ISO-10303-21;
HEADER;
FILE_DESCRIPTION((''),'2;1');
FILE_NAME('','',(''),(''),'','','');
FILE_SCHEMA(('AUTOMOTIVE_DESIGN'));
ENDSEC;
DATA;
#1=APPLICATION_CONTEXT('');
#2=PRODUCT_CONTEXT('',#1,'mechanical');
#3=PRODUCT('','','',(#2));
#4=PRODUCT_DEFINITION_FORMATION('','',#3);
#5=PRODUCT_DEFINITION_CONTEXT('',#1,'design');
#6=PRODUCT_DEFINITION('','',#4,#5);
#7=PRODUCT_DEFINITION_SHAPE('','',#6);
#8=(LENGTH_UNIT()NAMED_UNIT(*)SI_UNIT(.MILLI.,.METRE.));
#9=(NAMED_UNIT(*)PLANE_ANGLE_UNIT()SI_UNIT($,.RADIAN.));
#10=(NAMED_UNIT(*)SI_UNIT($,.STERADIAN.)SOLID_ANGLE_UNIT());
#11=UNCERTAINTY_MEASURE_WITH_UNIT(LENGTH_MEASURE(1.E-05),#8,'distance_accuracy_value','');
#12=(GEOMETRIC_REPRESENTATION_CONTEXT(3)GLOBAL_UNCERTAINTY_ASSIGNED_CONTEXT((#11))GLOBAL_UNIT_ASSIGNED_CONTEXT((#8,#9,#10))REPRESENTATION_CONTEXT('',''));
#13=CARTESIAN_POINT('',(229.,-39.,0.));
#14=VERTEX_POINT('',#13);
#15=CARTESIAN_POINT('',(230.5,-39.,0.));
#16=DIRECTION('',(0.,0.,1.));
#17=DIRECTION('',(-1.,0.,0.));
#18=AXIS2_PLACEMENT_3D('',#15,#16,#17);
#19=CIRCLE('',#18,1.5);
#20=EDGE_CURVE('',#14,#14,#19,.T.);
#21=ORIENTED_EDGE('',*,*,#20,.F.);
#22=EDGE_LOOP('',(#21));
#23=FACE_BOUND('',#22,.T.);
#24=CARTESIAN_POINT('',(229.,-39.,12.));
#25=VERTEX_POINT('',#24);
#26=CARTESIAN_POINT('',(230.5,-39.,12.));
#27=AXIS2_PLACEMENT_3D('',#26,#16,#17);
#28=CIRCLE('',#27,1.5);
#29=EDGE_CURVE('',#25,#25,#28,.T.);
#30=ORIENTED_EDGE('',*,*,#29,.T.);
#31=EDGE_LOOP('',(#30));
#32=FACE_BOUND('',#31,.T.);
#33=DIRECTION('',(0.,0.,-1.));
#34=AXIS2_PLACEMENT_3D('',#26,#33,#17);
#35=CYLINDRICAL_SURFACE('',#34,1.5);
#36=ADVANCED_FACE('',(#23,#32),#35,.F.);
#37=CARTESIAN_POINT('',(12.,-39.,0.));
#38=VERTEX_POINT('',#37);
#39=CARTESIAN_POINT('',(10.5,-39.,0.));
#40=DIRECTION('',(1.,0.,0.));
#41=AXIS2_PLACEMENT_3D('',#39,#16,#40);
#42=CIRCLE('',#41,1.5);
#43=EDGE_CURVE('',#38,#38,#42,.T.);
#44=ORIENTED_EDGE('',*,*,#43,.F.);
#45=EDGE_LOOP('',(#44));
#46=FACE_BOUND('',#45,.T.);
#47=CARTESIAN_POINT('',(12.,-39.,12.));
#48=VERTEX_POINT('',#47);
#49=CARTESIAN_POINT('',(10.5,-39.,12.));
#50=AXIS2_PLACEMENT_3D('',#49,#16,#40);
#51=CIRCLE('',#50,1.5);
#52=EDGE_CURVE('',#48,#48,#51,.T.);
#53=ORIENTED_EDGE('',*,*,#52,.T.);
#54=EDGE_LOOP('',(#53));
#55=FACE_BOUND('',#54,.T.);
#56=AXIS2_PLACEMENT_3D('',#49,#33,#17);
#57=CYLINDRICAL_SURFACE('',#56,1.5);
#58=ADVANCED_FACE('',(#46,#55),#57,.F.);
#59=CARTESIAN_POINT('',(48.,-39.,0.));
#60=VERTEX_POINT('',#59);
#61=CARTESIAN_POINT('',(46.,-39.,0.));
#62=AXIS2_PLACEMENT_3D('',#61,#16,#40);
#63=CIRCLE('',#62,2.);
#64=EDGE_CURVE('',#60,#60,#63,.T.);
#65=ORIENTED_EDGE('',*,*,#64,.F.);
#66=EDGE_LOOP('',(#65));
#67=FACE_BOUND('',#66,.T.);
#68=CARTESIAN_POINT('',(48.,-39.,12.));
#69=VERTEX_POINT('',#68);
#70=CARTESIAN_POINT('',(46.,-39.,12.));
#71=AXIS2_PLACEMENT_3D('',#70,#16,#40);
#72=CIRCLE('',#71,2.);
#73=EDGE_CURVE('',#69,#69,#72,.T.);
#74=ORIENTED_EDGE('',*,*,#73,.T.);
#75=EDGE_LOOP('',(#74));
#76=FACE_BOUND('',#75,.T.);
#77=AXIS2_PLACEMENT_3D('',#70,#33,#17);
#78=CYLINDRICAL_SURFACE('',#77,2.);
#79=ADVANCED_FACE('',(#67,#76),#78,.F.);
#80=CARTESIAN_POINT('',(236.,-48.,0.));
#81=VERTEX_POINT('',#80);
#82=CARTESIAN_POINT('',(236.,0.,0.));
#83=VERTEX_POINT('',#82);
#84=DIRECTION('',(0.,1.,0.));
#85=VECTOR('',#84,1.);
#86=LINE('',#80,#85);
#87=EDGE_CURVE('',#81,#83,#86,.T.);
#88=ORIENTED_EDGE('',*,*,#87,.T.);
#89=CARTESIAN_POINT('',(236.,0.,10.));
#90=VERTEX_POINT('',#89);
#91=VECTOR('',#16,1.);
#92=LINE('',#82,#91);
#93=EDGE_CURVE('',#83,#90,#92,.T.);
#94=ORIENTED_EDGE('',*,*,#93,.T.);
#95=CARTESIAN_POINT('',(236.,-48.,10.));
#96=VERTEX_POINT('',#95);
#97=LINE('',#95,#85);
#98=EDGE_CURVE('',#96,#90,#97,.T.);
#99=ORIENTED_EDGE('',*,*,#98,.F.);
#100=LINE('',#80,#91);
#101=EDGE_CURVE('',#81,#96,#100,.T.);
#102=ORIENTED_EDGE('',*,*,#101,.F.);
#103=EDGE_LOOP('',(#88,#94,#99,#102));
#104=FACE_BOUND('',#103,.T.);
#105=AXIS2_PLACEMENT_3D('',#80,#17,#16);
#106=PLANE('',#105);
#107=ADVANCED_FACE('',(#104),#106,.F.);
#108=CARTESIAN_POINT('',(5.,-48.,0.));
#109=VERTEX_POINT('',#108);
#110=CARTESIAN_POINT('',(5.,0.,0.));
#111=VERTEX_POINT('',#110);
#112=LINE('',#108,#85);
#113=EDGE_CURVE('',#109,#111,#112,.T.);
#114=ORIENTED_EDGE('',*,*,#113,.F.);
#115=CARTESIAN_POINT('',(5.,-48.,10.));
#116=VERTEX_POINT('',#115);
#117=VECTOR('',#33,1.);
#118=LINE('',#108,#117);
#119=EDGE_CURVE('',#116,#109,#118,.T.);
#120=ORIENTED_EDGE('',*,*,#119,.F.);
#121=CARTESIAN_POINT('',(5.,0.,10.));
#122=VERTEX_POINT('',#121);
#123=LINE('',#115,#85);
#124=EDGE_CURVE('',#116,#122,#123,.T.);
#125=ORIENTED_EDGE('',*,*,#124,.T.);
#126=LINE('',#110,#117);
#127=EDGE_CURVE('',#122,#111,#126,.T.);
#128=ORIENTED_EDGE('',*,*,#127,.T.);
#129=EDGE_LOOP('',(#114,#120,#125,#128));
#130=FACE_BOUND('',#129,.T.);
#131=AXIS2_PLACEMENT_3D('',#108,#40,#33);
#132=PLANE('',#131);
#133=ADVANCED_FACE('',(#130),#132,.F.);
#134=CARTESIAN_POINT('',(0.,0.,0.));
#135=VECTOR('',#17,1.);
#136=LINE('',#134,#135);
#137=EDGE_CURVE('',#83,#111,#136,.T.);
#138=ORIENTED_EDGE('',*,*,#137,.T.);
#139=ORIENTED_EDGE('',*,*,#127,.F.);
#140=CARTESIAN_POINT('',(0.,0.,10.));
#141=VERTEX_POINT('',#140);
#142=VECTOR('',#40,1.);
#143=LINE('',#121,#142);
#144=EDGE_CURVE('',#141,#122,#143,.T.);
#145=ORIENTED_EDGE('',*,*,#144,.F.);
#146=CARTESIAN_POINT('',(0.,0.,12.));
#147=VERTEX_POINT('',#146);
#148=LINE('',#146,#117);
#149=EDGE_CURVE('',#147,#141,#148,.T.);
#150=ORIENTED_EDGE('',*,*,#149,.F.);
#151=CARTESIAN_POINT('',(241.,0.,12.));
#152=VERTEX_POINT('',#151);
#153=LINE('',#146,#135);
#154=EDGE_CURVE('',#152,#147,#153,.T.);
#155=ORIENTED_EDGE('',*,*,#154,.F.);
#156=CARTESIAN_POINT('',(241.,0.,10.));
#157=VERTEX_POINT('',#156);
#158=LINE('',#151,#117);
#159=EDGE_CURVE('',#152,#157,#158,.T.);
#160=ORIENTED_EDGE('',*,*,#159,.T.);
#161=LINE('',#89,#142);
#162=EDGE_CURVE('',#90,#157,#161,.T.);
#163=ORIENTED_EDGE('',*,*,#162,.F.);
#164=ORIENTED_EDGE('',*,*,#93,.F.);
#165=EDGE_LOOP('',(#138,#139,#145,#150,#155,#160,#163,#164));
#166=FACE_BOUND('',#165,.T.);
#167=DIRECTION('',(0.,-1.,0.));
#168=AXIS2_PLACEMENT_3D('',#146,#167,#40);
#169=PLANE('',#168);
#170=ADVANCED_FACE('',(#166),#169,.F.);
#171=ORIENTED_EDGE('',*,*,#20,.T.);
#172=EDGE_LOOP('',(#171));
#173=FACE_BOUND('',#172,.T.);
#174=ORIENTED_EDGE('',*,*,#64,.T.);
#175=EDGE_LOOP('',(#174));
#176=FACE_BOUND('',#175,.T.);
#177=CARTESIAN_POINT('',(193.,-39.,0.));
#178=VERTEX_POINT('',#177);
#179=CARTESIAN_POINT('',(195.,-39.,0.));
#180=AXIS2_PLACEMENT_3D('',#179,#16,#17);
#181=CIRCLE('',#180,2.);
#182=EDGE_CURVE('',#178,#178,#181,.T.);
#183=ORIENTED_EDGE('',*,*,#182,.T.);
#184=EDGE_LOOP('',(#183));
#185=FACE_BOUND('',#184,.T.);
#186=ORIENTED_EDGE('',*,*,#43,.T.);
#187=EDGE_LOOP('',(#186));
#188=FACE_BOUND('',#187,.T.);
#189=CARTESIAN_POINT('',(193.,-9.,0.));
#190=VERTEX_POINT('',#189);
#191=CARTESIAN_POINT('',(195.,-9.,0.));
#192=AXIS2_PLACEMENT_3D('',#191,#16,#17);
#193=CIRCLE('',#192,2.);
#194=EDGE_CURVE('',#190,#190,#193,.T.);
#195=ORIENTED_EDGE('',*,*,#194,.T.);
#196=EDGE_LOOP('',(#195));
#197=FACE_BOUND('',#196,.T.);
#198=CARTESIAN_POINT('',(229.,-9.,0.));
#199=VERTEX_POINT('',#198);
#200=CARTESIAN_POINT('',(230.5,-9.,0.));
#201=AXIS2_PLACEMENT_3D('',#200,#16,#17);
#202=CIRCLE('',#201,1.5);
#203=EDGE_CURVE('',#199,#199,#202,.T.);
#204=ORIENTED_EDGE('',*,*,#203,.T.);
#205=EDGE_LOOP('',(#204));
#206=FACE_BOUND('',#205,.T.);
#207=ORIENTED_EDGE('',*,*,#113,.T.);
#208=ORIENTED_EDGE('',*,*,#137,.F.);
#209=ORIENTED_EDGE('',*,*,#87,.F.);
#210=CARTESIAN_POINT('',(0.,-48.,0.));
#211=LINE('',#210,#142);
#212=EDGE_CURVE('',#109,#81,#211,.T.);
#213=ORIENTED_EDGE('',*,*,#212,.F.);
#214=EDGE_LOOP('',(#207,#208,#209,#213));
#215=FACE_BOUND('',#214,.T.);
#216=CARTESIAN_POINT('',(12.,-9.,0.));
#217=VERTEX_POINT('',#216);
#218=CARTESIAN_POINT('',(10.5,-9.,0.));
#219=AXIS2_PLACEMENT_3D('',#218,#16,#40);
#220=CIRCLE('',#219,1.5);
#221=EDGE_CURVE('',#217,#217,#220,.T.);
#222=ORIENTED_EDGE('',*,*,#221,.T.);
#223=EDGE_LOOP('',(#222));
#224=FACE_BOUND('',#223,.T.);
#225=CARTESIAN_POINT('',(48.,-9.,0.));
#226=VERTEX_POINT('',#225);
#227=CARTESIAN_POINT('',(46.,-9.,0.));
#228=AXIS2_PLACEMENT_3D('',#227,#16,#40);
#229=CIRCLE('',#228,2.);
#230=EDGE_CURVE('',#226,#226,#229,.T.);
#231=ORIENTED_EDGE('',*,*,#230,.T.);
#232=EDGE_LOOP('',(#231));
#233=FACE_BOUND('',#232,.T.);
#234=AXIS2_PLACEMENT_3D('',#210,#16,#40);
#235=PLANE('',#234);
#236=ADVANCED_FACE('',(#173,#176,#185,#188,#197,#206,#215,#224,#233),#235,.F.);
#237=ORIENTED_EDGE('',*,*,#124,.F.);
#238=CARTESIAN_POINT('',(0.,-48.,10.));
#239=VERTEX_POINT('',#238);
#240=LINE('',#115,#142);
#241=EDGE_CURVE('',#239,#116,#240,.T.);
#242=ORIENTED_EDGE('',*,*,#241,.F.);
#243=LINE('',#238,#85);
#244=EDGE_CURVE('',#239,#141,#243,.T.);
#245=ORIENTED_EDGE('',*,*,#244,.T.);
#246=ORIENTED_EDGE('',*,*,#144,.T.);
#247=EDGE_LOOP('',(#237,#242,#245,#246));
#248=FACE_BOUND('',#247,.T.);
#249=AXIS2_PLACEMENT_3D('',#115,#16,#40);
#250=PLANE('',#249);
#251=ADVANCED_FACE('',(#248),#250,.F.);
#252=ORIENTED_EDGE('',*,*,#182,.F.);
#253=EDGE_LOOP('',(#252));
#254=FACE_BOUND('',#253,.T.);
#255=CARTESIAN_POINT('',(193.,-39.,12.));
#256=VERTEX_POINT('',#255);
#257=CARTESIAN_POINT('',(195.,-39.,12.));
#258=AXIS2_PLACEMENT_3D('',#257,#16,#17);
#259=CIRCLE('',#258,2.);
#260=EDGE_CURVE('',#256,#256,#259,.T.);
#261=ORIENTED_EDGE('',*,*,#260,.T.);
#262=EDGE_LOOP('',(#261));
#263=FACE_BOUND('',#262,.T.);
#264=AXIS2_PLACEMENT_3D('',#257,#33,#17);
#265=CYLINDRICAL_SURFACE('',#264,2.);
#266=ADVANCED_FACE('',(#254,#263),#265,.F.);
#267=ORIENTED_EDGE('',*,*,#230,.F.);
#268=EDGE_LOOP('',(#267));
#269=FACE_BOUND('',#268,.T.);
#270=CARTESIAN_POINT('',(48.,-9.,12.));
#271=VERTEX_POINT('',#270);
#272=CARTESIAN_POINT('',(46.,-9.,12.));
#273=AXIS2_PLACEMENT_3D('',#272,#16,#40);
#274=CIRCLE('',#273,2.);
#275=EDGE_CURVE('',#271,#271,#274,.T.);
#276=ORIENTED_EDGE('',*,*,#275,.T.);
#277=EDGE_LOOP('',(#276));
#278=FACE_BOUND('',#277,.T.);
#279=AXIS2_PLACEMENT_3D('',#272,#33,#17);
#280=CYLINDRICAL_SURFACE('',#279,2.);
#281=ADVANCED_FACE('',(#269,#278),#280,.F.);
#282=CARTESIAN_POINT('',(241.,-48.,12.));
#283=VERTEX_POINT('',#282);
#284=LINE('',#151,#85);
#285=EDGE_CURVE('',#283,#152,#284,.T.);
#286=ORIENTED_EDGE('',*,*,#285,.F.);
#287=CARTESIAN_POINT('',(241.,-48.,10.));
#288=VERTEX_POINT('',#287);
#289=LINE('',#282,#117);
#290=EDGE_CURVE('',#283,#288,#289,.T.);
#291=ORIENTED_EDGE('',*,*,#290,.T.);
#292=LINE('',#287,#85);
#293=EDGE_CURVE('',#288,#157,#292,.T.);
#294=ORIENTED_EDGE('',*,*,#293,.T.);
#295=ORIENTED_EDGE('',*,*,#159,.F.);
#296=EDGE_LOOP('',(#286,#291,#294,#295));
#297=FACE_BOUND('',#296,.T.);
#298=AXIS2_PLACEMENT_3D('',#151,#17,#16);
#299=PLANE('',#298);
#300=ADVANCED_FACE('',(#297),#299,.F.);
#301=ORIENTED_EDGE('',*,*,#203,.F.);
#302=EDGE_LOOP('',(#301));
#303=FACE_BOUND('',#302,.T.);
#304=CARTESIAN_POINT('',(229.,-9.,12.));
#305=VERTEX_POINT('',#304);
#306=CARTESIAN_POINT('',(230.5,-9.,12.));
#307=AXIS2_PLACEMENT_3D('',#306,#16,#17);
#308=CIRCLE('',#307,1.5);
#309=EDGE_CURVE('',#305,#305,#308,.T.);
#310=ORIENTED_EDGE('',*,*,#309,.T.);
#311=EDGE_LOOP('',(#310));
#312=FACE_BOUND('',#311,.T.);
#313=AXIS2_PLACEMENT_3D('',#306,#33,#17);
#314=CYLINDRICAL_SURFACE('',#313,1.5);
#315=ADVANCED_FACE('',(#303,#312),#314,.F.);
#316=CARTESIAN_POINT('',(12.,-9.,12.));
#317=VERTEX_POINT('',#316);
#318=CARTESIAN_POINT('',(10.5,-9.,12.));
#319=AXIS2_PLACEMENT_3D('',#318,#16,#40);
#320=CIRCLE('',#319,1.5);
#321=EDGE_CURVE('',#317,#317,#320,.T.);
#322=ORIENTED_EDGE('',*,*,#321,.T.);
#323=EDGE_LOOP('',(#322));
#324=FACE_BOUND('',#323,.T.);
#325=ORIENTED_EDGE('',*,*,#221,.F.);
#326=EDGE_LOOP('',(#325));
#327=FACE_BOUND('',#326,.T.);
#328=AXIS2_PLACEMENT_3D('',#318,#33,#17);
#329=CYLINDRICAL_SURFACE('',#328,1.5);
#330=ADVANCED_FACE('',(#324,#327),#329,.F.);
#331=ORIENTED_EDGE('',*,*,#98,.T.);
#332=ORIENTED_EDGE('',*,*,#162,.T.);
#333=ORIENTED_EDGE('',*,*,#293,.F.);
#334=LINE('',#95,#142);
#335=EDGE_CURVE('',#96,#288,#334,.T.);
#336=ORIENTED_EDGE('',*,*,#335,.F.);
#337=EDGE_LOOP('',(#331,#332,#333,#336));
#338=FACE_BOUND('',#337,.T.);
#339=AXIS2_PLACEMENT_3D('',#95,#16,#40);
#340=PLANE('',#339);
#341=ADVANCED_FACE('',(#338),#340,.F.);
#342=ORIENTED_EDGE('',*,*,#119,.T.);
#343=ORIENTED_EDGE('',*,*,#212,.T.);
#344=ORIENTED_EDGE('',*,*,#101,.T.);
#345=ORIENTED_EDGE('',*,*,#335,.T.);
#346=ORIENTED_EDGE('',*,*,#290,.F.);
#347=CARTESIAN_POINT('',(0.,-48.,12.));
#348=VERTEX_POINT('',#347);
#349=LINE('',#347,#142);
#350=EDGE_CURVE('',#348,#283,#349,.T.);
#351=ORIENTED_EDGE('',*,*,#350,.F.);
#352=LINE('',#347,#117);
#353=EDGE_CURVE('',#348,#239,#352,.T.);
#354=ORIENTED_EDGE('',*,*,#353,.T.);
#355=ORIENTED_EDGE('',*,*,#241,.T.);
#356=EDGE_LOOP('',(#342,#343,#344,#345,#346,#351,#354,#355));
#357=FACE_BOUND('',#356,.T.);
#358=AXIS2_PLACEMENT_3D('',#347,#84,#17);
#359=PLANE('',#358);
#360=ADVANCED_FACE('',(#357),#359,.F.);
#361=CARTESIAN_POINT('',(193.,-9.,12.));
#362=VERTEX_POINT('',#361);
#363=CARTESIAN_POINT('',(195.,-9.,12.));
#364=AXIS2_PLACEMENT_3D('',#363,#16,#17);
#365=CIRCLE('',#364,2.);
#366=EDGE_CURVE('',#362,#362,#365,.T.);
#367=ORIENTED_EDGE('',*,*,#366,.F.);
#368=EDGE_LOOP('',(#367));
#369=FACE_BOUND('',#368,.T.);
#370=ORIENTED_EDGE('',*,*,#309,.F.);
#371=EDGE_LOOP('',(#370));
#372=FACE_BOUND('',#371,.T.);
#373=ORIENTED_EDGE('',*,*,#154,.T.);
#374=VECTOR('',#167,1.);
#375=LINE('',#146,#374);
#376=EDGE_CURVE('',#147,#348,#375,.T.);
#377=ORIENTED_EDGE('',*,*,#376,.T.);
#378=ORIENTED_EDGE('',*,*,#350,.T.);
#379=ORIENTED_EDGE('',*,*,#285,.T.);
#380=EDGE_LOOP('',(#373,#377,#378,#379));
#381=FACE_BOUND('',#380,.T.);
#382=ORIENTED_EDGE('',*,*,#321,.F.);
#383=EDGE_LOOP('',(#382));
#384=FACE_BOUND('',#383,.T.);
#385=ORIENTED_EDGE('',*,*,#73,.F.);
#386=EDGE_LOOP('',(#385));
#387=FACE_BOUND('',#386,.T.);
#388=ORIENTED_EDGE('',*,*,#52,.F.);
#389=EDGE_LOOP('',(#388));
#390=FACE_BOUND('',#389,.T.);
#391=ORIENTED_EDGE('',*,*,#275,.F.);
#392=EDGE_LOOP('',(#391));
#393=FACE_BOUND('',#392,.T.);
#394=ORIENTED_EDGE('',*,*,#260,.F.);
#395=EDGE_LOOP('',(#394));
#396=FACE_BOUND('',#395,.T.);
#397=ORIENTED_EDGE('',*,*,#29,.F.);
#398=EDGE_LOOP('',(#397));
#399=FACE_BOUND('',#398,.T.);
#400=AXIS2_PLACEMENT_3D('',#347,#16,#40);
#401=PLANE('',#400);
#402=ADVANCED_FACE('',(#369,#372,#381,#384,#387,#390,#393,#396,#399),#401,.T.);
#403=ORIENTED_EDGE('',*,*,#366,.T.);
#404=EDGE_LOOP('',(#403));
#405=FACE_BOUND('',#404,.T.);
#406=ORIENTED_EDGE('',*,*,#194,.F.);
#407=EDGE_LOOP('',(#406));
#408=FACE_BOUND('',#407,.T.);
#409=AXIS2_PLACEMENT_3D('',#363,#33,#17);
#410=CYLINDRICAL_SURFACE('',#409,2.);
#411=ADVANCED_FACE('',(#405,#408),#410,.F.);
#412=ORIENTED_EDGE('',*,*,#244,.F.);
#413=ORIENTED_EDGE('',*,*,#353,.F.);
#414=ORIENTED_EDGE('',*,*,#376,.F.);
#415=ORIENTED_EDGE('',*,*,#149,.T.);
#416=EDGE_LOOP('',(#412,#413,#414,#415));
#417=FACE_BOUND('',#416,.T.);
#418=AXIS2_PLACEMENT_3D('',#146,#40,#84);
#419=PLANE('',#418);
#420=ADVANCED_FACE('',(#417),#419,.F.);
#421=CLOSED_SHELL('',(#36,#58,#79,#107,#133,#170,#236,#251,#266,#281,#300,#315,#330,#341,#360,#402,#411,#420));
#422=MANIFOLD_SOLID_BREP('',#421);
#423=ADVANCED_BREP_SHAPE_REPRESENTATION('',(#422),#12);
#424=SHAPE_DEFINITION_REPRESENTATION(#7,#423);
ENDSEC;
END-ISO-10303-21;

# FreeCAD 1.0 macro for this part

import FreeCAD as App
import Part
import Sketcher

V = App.Vector
Q = App.Units.Quantity

doc = App.newDocument("Part")
body = doc.addObject("PartDesign::Body", "Body")

# Sketch on XY plane
sketch1 = doc.addObject("Sketcher::SketchObject", "Sketch")
body.addObject(sketch1)
sketch1.AttachmentSupport = (doc.XY_Plane, [""])
sketch1.MapMode = "FlatFace"
sketch1.addGeometry([
    Part.LineSegment(V(0, 0, 0), V(0, -48, 0)),  # 0
    Part.LineSegment(V(0, -48, 0), V(241, -48, 0)),  # 1
    Part.LineSegment(V(241, -48, 0), V(241, 0, 0)),  # 2
    Part.LineSegment(V(241, 0, 0), V(0, 0, 0)),  # 3
    Part.Circle(V(10.5, -39, 0), V(0, 0, 1), 1.5),  # 4
    Part.Circle(V(46, -39, 0), V(0, 0, 1), 2),  # 5
    Part.Circle(V(195, -39, 0), V(0, 0, 1), 2),  # 6
    Part.Circle(V(230.5, -39, 0), V(0, 0, 1), 1.5),  # 7
    Part.Circle(V(10.5, -9, 0), V(0, 0, 1), 1.5),  # 8
    Part.Circle(V(46, -9, 0), V(0, 0, 1), 2),  # 9
    Part.Circle(V(195, -9, 0), V(0, 0, 1), 2),  # 10
    Part.Circle(V(230.5, -9, 0), V(0, 0, 1), 1.5),  # 11
], False)
sketch1.addConstraint([
    Sketcher.Constraint("Coincident", 0, 2, 1, 1),
    Sketcher.Constraint("Coincident", 1, 2, 2, 1),
    Sketcher.Constraint("Coincident", 2, 2, 3, 1),
    Sketcher.Constraint("Coincident", 3, 2, 0, 1),
    Sketcher.Constraint("Vertical", 0),
    Sketcher.Constraint("Horizontal", 1),
    Sketcher.Constraint("Vertical", 2),
    Sketcher.Constraint("Horizontal", 3),
    Sketcher.Constraint("Coincident", 3, 2, -1, 1),
    Sketcher.Constraint("Equal", 5, 6),
    Sketcher.Constraint("Equal", 4, 7),
    Sketcher.Constraint("Equal", 7, 8),
    Sketcher.Constraint("Equal", 6, 9),
    Sketcher.Constraint("Equal", 9, 10),
    Sketcher.Constraint("Equal", 8, 11),
    Sketcher.Constraint("Horizontal", 4, 3, 5, 3),
    Sketcher.Constraint("Horizontal", 5, 3, 6, 3),
    Sketcher.Constraint("Horizontal", 6, 3, 7, 3),
    Sketcher.Constraint("Horizontal", 8, 3, 9, 3),
    Sketcher.Constraint("Horizontal", 9, 3, 10, 3),
    Sketcher.Constraint("Horizontal", 10, 3, 11, 3),
    Sketcher.Constraint("Vertical", 4, 3, 8, 3),
    Sketcher.Constraint("Vertical", 5, 3, 9, 3),
    Sketcher.Constraint("Vertical", 6, 3, 10, 3),
    Sketcher.Constraint("Vertical", 7, 3, 11, 3),
    Sketcher.Constraint("Diameter", 4, Q("3 mm")),
    Sketcher.Constraint("Diameter", 5, Q("4 mm")),
    Sketcher.Constraint("DistanceX", 1, 1, 1, 2, Q("241 mm")),
    Sketcher.Constraint("DistanceY", 0, 2, 0, 1, Q("48 mm")),
    Sketcher.Constraint("DistanceY", 4, 3, -1, 1, Q("39 mm")),
    Sketcher.Constraint("DistanceX", -1, 1, 5, 3, Q("46 mm")),
    Sketcher.Constraint("DistanceX", -1, 1, 6, 3, Q("195 mm")),
    Sketcher.Constraint("DistanceY", 8, 3, -1, 1, Q("9 mm")),
    Sketcher.Constraint("DistanceX", 4, 3, 7, 3, Q("220 mm")),
    Sketcher.Constraint("DistanceX", -1, 1, 4, 3, Q("10.5 mm")),
])
pad1 = doc.addObject("PartDesign::Pad", "Pad")
body.addObject(pad1)
pad1.Profile = sketch1
pad1.Length = 12

# Sketch on XZ plane
sketch2 = doc.addObject("Sketcher::SketchObject", "Sketch001")
body.addObject(sketch2)
sketch2.AttachmentSupport = (doc.XZ_Plane, [""])
sketch2.MapMode = "FlatFace"
sketch2.addGeometry([
    Part.LineSegment(V(0, 0, 0), V(0, 10, 0)),  # 0
    Part.LineSegment(V(0, 10, 0), V(5, 10, 0)),  # 1
    Part.LineSegment(V(5, 10, 0), V(5, 0, 0)),  # 2
    Part.LineSegment(V(5, 0, 0), V(0, 0, 0)),  # 3
    Part.LineSegment(V(236, 0, 0), V(236, 10, 0)),  # 4
    Part.LineSegment(V(236, 10, 0), V(241, 10, 0)),  # 5
    Part.LineSegment(V(241, 10, 0), V(241, 0, 0)),  # 6
    Part.LineSegment(V(241, 0, 0), V(236, 0, 0)),  # 7
], False)
sketch2.addConstraint([
    Sketcher.Constraint("Coincident", 0, 2, 1, 1),
    Sketcher.Constraint("Coincident", 1, 2, 2, 1),
    Sketcher.Constraint("Coincident", 2, 2, 3, 1),
    Sketcher.Constraint("Coincident", 3, 2, 0, 1),
    Sketcher.Constraint("Coincident", 4, 2, 5, 1),
    Sketcher.Constraint("Coincident", 5, 2, 6, 1),
    Sketcher.Constraint("Coincident", 6, 2, 7, 1),
    Sketcher.Constraint("Coincident", 7, 2, 4, 1),
    Sketcher.Constraint("Vertical", 0),
    Sketcher.Constraint("Horizontal", 1),
    Sketcher.Constraint("Vertical", 2),
    Sketcher.Constraint("Horizontal", 3),
    Sketcher.Constraint("Vertical", 4),
    Sketcher.Constraint("Horizontal", 5),
    Sketcher.Constraint("Vertical", 6),
    Sketcher.Constraint("Horizontal", 7),
    Sketcher.Constraint("Coincident", 3, 2, -1, 1),
    Sketcher.Constraint("PointOnObject", 6, 2, -1),
    Sketcher.Constraint("Horizontal", 1, 2, 4, 2),
    Sketcher.Constraint("Equal", 3, 5),
    Sketcher.Constraint("DistanceX", 1, 1, 1, 2, Q("5 mm")),
    Sketcher.Constraint("DistanceY", 0, 1, 0, 2, Q("10 mm")),
    Sketcher.Constraint("DistanceX", -1, 1, 4, 2, Q("236 mm")),
])
pocket1 = doc.addObject("PartDesign::Pocket", "Pocket")
body.addObject(pocket1)
pocket1.Profile = sketch2
pocket1.Type = "ThroughAll"
pocket1.Reversed = True

doc.recompute()
